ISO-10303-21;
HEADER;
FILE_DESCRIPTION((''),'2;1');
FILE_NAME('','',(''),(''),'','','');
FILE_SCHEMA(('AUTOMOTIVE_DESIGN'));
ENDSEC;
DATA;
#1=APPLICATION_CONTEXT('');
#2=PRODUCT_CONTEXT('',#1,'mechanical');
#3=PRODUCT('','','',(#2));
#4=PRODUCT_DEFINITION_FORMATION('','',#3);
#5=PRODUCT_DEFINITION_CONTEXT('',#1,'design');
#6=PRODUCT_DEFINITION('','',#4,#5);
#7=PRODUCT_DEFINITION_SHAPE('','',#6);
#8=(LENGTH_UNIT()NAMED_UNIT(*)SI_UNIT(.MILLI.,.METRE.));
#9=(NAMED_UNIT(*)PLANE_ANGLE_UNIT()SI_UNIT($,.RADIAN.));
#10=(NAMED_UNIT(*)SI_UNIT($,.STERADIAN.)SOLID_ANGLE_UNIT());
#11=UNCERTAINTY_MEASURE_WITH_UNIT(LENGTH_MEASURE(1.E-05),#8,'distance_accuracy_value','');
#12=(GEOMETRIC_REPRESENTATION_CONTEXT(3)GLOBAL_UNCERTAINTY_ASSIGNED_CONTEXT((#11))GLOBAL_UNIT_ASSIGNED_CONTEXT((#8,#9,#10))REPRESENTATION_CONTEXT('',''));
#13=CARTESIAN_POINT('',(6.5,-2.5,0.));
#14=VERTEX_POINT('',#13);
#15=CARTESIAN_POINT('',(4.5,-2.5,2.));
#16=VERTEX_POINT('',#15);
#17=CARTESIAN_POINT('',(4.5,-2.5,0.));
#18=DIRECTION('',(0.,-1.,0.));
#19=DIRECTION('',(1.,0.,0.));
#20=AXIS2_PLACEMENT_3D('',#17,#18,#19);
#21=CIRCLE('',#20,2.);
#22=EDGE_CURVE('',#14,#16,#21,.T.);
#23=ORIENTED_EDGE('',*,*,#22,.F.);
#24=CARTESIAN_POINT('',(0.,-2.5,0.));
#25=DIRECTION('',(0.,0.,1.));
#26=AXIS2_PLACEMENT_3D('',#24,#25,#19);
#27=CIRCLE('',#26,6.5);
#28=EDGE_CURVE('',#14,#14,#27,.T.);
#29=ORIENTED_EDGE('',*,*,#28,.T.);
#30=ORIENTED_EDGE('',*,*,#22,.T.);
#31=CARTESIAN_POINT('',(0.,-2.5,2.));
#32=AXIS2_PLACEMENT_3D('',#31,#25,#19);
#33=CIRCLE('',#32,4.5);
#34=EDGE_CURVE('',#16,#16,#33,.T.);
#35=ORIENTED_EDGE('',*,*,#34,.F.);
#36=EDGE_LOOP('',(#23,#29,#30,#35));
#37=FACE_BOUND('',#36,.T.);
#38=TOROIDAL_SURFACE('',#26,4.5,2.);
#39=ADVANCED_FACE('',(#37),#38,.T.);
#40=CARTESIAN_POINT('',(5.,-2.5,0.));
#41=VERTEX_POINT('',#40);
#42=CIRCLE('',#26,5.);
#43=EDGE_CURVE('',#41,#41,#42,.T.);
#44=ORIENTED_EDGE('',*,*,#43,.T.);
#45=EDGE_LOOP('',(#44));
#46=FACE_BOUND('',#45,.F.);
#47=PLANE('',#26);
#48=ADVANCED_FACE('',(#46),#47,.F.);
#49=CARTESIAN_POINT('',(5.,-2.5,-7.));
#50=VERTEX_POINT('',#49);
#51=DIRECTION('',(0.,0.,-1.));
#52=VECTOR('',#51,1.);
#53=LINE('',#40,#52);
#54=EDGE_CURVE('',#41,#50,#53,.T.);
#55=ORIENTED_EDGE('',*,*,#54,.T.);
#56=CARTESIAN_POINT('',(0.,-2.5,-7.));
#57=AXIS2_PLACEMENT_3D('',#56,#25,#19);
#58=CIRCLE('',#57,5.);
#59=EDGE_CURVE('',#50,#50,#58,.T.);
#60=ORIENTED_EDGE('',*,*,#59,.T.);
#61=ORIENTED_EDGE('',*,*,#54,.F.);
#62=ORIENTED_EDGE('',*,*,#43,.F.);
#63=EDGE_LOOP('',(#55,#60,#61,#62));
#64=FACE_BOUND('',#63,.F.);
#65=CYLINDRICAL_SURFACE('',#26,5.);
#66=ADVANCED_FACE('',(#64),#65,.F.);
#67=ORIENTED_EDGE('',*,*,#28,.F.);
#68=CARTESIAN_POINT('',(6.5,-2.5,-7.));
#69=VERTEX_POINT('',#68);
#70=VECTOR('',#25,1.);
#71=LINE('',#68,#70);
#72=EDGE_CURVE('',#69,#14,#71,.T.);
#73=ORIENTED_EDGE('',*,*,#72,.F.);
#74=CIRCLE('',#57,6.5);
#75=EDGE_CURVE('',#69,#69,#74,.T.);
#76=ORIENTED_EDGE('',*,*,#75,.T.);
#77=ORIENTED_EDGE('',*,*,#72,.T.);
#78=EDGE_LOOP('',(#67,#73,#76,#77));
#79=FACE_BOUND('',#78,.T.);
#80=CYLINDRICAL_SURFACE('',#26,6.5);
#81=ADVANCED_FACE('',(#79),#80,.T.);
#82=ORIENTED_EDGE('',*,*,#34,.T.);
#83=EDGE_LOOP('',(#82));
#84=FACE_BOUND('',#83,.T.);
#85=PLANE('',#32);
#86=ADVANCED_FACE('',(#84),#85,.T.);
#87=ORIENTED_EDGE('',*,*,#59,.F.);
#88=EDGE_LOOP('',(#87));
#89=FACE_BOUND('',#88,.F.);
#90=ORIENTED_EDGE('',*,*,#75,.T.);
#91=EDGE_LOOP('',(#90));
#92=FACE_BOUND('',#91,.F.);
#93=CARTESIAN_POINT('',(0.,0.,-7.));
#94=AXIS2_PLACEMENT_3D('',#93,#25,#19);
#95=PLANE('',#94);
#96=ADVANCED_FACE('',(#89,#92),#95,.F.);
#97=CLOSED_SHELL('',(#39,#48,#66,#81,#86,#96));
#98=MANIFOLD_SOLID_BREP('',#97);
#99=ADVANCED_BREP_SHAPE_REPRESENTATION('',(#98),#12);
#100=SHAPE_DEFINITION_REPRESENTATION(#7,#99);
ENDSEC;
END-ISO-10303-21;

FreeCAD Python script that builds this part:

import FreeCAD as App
import Part
import Sketcher

V = App.Vector


def edges_at(feature, points):
    """Names of the edges that pass closest to the given points."""
    edges = feature.Shape.Edges
    near = lambda p: min(range(len(edges)), key=lambda i: edges[i].distToShape(Part.Vertex(*p))[0])
    return sorted({f"Edge{near(p) + 1}" for p in points})

doc = App.newDocument("Part")
params = doc.addObject("Spreadsheet::Sheet", "Params")
for row, (alias, value) in enumerate([
    ("sketch1_diameter", "13 mm"),
    ("sketch1_diameter2", "10 mm"),
    ("pad1_length", "7 mm"),
    ("sketch2_diameter", "13 mm"),
    ("pad2_length", "2 mm"),
    ("fillet_radius", "2 mm"),
], start=1):
    params.set(f"A{row}", alias)
    params.set(f"B{row}", "=" + value)
    params.setAlias(f"B{row}", alias)

body = doc.addObject("PartDesign::Body", "Body")

sketch1 = body.newObject("Sketcher::SketchObject", "Sketch")
sketch1.AttachmentSupport = (doc.getObject("XY_Plane"), [""])
sketch1.MapMode = "FlatFace"
sketch1.addGeometry([
    Part.Circle(V(0, -2, 0), V(0, 0, 1), 6),
    Part.Circle(V(0, -2, 0), V(0, 0, 1), 5),
], False)
sketch1.addConstraint([
    Sketcher.Constraint("Coincident", 1, 3, 0, 3),
    Sketcher.Constraint("PointOnObject", 0, 3, -2),
    Sketcher.Constraint("Diameter", 0, 13.0),
    Sketcher.Constraint("Diameter", 1, 10.0),
    Sketcher.Constraint("DistanceY", 0, 3, -1, 1, 2.5),
])
sketch1.setExpression("Constraints[2]", "Params.sketch1_diameter")
sketch1.setExpression("Constraints[3]", "Params.sketch1_diameter2")
pad1 = body.newObject("PartDesign::Pad", "Pad")
pad1.Profile = sketch1
pad1.setExpression("Length", "Params.pad1_length")
pad1.Reversed = True

sketch2 = body.newObject("Sketcher::SketchObject", "Sketch001")
sketch2.AttachmentSupport = (doc.getObject("XY_Plane"), [""])
sketch2.MapMode = "FlatFace"
sketch2.addGeometry(Part.Circle(V(0, -2, 0), V(0, 0, 1), 6), False)
sketch2.addConstraint([
    Sketcher.Constraint("PointOnObject", 0, 3, -2),
    Sketcher.Constraint("Diameter", 0, 13.0),
    Sketcher.Constraint("DistanceY", 0, 3, -1, 1, 2.5),
])
sketch2.setExpression("Constraints[1]", "Params.sketch2_diameter")
pad2 = body.newObject("PartDesign::Pad", "Pad001")
pad2.Profile = sketch2
pad2.setExpression("Length", "Params.pad2_length")
doc.recompute()

fillet = body.newObject("PartDesign::Fillet", "Fillet")
fillet.Base = (pad2, edges_at(pad2, [(-6.5, -2.5, 2)]))
fillet.setExpression("Radius", "Params.fillet_radius")

doc.recompute()
